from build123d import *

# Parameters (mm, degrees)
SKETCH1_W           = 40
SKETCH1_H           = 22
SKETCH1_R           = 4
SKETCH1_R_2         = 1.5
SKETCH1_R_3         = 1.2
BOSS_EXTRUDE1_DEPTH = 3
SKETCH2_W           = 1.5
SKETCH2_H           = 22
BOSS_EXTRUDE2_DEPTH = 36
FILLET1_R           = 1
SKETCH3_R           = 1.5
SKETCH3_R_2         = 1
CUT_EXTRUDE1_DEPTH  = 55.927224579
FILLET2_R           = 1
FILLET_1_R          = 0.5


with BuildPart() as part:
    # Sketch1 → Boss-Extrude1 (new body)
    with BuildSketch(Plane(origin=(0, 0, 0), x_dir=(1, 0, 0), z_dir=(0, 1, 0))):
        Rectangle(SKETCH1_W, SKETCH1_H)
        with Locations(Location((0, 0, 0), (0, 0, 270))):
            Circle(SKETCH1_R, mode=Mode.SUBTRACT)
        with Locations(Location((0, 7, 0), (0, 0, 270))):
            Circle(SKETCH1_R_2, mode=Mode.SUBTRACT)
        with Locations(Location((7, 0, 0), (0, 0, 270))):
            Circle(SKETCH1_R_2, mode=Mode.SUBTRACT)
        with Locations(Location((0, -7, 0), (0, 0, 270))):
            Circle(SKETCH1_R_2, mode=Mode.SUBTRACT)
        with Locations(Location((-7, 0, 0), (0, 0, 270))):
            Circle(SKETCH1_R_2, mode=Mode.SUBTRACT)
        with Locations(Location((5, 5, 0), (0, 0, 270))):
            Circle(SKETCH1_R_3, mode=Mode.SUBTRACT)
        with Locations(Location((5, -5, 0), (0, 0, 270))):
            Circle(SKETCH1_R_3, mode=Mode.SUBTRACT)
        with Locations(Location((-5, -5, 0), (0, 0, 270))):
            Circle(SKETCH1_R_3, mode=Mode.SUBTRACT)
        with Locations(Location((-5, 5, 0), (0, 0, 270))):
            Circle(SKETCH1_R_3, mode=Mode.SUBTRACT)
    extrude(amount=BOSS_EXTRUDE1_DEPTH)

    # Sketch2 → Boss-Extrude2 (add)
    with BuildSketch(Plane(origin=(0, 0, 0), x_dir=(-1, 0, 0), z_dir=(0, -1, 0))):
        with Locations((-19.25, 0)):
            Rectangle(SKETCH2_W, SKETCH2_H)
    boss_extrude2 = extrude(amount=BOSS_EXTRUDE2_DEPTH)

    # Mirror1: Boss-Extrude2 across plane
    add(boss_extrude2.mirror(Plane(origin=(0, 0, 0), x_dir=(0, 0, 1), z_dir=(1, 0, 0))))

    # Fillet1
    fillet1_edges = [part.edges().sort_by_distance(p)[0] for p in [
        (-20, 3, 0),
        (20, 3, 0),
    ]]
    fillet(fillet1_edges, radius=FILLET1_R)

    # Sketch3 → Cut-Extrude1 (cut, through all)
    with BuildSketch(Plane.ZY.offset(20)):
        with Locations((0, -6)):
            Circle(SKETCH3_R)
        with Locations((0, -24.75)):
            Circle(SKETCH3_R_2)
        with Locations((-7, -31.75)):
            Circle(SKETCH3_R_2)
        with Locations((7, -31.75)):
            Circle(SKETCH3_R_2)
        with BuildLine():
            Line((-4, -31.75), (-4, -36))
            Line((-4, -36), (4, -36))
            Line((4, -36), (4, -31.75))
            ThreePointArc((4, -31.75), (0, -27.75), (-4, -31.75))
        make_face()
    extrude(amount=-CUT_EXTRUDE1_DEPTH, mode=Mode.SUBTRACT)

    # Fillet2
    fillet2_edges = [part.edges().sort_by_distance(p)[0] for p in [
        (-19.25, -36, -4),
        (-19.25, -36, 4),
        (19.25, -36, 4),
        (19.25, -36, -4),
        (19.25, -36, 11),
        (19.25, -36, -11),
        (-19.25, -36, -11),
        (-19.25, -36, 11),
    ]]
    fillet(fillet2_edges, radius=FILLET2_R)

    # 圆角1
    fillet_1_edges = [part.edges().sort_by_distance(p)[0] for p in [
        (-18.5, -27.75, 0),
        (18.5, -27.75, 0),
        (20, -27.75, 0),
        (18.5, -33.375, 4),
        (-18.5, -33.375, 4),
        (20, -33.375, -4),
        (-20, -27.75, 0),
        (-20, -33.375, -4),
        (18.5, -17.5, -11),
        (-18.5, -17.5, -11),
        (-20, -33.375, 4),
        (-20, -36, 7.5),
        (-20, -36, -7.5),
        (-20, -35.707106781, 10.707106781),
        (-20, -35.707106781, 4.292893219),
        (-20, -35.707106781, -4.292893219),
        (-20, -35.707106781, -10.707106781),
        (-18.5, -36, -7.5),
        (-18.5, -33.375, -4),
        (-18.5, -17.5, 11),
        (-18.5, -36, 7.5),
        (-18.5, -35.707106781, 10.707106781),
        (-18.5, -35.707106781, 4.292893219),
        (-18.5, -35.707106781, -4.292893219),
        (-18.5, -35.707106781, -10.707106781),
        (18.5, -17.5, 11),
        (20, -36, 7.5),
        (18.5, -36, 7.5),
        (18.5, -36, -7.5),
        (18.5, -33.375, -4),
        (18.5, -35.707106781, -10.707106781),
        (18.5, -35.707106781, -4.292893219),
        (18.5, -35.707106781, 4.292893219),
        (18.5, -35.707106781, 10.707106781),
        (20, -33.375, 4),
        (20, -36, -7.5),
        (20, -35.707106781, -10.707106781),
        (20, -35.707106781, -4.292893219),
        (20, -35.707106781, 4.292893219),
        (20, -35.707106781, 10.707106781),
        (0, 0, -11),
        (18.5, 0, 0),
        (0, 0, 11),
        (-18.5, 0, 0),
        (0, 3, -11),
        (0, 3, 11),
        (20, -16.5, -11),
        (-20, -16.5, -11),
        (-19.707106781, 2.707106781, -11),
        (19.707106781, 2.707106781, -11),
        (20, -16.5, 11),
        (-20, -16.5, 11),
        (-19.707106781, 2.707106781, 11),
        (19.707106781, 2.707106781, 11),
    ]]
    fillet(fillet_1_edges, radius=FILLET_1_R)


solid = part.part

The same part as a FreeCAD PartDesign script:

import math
import FreeCAD as App
import Part
import Sketcher

V = App.Vector
Q = App.Units.Quantity


def edges_at(feature, points):
    """Names of the edges that pass closest to the given points."""
    edges = feature.Shape.Edges
    near = lambda p: min(range(len(edges)), key=lambda i: edges[i].distToShape(Part.Vertex(*p))[0])
    return sorted({f"Edge{near(p) + 1}" for p in points})


def add_polygon(sketch, points):
    """Adds a closed chain of lines whose ends are joined by coincident constraints."""
    first, n = sketch.GeometryCount, len(points)
    for a, b in zip(points, points[1:] + points[:1]):
        sketch.addGeometry(Part.LineSegment(App.Vector(*a, 0), App.Vector(*b, 0)), False)
    for i in range(n):
        sketch.addConstraint(Sketcher.Constraint("Coincident", first + i, 2, first + (i + 1) % n, 1))

doc = App.newDocument("Part")
params = doc.addObject("Spreadsheet::Sheet", "Params")
for row, (alias, value) in enumerate([
    ("sketch1_diameter", "3 mm"),
    ("sketch1_diameter2", "8 mm"),
    ("sketch1_diameter3", "2.4 mm"),
    ("sketch1_width", "40 mm"),
    ("sketch1_height", "22 mm"),
    ("pad1_length", "3 mm"),
    ("sketch2_height", "22 mm"),
    ("sketch2_width", "1.5 mm"),
    ("pad2_length", "36 mm"),
    ("fillet_radius", "1 mm"),
    ("sketch3_diameter", "3 mm"),
    ("sketch3_diameter2", "2 mm"),
    ("sketch3_radius", "4 mm"),
    ("sketch3_width", "4.25 mm"),
    ("fillet2_radius", "1 mm"),
    ("fillet3_radius", "0.5 mm"),
], start=1):
    params.set(f"A{row}", alias)
    params.set(f"B{row}", "=" + value)
    params.setAlias(f"B{row}", alias)

body = doc.addObject("PartDesign::Body", "Body")

# Sketch on XZ plane
sketch1 = body.newObject("Sketcher::SketchObject", "Sketch")
sketch1.AttachmentSupport = (doc.getObject("XZ_Plane"), [""])
sketch1.MapMode = "FlatFace"
add_polygon(sketch1, [(-20, -11), (-20, 11), (20, 11), (20, -11)])  # lines 0-3
sketch1.addGeometry(Part.Circle(V(-5, 5, 0), V(0, 0, 1), 1.2), False)  # 4
sketch1.addGeometry(Part.Circle(V(0, 7, 0), V(0, 0, 1), 1.5), False)  # 5
sketch1.addGeometry(Part.Circle(V(5, 5, 0), V(0, 0, 1), 1.2), False)  # 6
sketch1.addGeometry(Part.Circle(V(-7, 0, 0), V(0, 0, 1), 1.5), False)  # 7
sketch1.addGeometry(Part.Circle(V(-5, -5, 0), V(0, 0, 1), 1.2), False)  # 8
sketch1.addGeometry(Part.Circle(V(0, 0, 0), V(0, 0, 1), 4), False)  # 9
sketch1.addGeometry(Part.Circle(V(7, 0, 0), V(0, 0, 1), 1.5), False)  # 10
sketch1.addGeometry(Part.Circle(V(0, -7, 0), V(0, 0, 1), 1.5), False)  # 11
sketch1.addGeometry(Part.Circle(V(5, -5, 0), V(0, 0, 1), 1.2), False)  # 12
sketch1.addConstraint([
    Sketcher.Constraint("Vertical", 0),
    Sketcher.Constraint("Horizontal", 1),
    Sketcher.Constraint("Vertical", 2),
    Sketcher.Constraint("Horizontal", 3),
    Sketcher.Constraint("Coincident", 9, 3, -1, 1),
    Sketcher.Constraint("Equal", 4, 6),
    Sketcher.Constraint("Equal", 5, 7),
    Sketcher.Constraint("Equal", 6, 8),
    Sketcher.Constraint("Equal", 7, 10),
    Sketcher.Constraint("Equal", 10, 11),
    Sketcher.Constraint("Equal", 8, 12),
    Sketcher.Constraint("Symmetric", 6, 3, 8, 3, -1, 1),
    Sketcher.Constraint("Symmetric", 7, 3, 10, 3, -1, 1),
    Sketcher.Constraint("Symmetric", 5, 3, 11, 3, -1, 1),
    Sketcher.Constraint("Symmetric", 4, 3, 12, 3, -1, 1),
    Sketcher.Constraint("Symmetric", 0, 2, 2, 2, -1, 1),
    Sketcher.Constraint("Symmetric", 4, 3, 6, 3, -2),
    Sketcher.Constraint("PointOnObject", 5, 3, -2),
    Sketcher.Constraint("PointOnObject", 7, 3, -1),
    Sketcher.Constraint("Diameter", 5, Q("3 mm")),
    Sketcher.Constraint("Diameter", 9, Q("8 mm")),
    Sketcher.Constraint("Diameter", 4, Q("2.4 mm")),
    Sketcher.Constraint("DistanceX", 1, 1, 1, 2, Q("40 mm")),
    Sketcher.Constraint("DistanceY", 0, 1, 0, 2, Q("22 mm")),
    Sketcher.Constraint("DistanceX", 4, 3, -1, 1, Q("5 mm")),
    Sketcher.Constraint("DistanceY", -1, 1, 4, 3, Q("5 mm")),
    Sketcher.Constraint("DistanceY", -1, 1, 5, 3, Q("7 mm")),
    Sketcher.Constraint("DistanceX", 7, 3, -1, 1, Q("7 mm")),
])
sketch1.setExpression("Constraints[23]", "Params.sketch1_diameter")
sketch1.setExpression("Constraints[24]", "Params.sketch1_diameter2")
sketch1.setExpression("Constraints[25]", "Params.sketch1_diameter3")
sketch1.setExpression("Constraints[26]", "Params.sketch1_width")
sketch1.setExpression("Constraints[27]", "Params.sketch1_height")
pad1 = body.newObject("PartDesign::Pad", "Pad")
pad1.Profile = sketch1
pad1.setExpression("Length", "Params.pad1_length")
pad1.Reversed = True

# Sketch on XZ plane
sketch2 = body.newObject("Sketcher::SketchObject", "Sketch001")
sketch2.AttachmentSupport = (doc.getObject("XZ_Plane"), [""])
sketch2.MapMode = "FlatFace"
add_polygon(sketch2, [(20, -11), (20, 11), (18.5, 11), (18.5, -11)])  # lines 0-3
sketch2.addConstraint([
    Sketcher.Constraint("Vertical", 0),
    Sketcher.Constraint("Horizontal", 1),
    Sketcher.Constraint("Vertical", 2),
    Sketcher.Constraint("Horizontal", 3),
    Sketcher.Constraint("DistanceY", 0, 1, 0, 2, Q("22 mm")),
    Sketcher.Constraint("DistanceX", 1, 2, 1, 1, Q("1.5 mm")),
    Sketcher.Constraint("DistanceX", -1, 1, 0, 2, Q("20 mm")),
    Sketcher.Constraint("DistanceY", -1, 1, 0, 2, Q("11 mm")),
])
sketch2.setExpression("Constraints[8]", "Params.sketch2_height")
sketch2.setExpression("Constraints[9]", "Params.sketch2_width")
pad2 = body.newObject("PartDesign::Pad", "Pad001")
pad2.Profile = sketch2
pad2.setExpression("Length", "Params.pad2_length")
doc.recompute()

mirrored = body.newObject("PartDesign::Mirrored", "Mirrored")
mirrored.Originals = [pad2]
mirrored.MirrorPlane = (doc.getObject("YZ_Plane"), [""])
body.Tip = mirrored
doc.recompute()

fillet = body.newObject("PartDesign::Fillet", "Fillet")
fillet.Base = (mirrored, edges_at(mirrored, [(-20, 3, 0), (20, 3, 0)]))
fillet.setExpression("Radius", "Params.fillet_radius")

# Sketch on YZ plane
sketch3 = body.newObject("Sketcher::SketchObject", "Sketch002")
sketch3.AttachmentSupport = (doc.getObject("YZ_Plane"), [""])
sketch3.MapMode = "FlatFace"
sketch3.AttachmentOffset = App.Placement(V(0, 0, -20), App.Rotation())
sketch3.addGeometry([
    Part.Circle(V(-6, 0, 0), V(0, 0, 1), 1.5),  # 0
    Part.Circle(V(-24.8, 0, 0), V(0, 0, 1), 1),  # 1
    Part.Circle(V(-31.8, -7, 0), V(0, 0, 1), 1),  # 2
    Part.Circle(V(-31.8, 7, 0), V(0, 0, 1), 1),  # 3
    Part.LineSegment(V(-31.8, -4, 0), V(-36, -4, 0)),  # 4
    Part.LineSegment(V(-36, -4, 0), V(-36, 4, 0)),  # 5
    Part.LineSegment(V(-36, 4, 0), V(-31.8, 4, 0)),  # 6
    Part.ArcOfCircle(Part.Circle(V(-31.8, 0, 0), V(0, 0, 1), 4), math.radians(-90), math.radians(90)),  # 7
], False)
sketch3.addConstraint([
    Sketcher.Constraint("Coincident", 4, 2, 5, 1),
    Sketcher.Constraint("Coincident", 5, 2, 6, 1),
    Sketcher.Constraint("Tangent", 6, 2, 7, 2),
    Sketcher.Constraint("Tangent", 7, 1, 4, 1),
    Sketcher.Constraint("Horizontal", 4),
    Sketcher.Constraint("Vertical", 5),
    Sketcher.Constraint("Horizontal", 6),
    Sketcher.Constraint("Equal", 1, 2),
    Sketcher.Constraint("Equal", 2, 3),
    Sketcher.Constraint("Symmetric", 2, 3, 3, 3, -1),
    Sketcher.Constraint("PointOnObject", 0, 3, -1),
    Sketcher.Constraint("PointOnObject", 1, 3, -1),
    Sketcher.Constraint("PointOnObject", 7, 3, -1),
    Sketcher.Constraint("Vertical", 3, 3, 7, 3),
    Sketcher.Constraint("Diameter", 0, Q("3 mm")),
    Sketcher.Constraint("Diameter", 1, Q("2 mm")),
    Sketcher.Constraint("Radius", 7, Q("4 mm")),
    Sketcher.Constraint("DistanceX", 0, 3, -1, 1, Q("6 mm")),
    Sketcher.Constraint("DistanceY", 2, 3, -1, 1, Q("7 mm")),
    Sketcher.Constraint("DistanceX", 4, 2, -1, 1, Q("36 mm")),
    Sketcher.Constraint("DistanceX", 2, 3, 1, 3, Q("7 mm")),
    Sketcher.Constraint("DistanceX", 4, 2, 4, 1, Q("4.25 mm")),
])
sketch3.setExpression("Constraints[14]", "Params.sketch3_diameter")
sketch3.setExpression("Constraints[15]", "Params.sketch3_diameter2")
sketch3.setExpression("Constraints[16]", "Params.sketch3_radius")
sketch3.setExpression("Constraints[21]", "Params.sketch3_width")
pocket1 = body.newObject("PartDesign::Pocket", "Pocket")
pocket1.Profile = sketch3
pocket1.Type = "ThroughAll"
pocket1.Reversed = True
doc.recompute()

fillet2 = body.newObject("PartDesign::Fillet", "Fillet001")
fillet2.Base = (pocket1, edges_at(pocket1, [
    (-19.25, -36, -4),
    (-19.25, -36, 4),
    (19.25, -36, 4),
    (19.25, -36, -4),
    (19.25, -36, 11),
    (19.25, -36, -11),
    (-19.25, -36, -11),
    (-19.25, -36, 11),
]))
fillet2.setExpression("Radius", "Params.fillet2_radius")
doc.recompute()

fillet3 = body.newObject("PartDesign::Fillet", "Fillet002")
fillet3.Base = (fillet2, edges_at(fillet2, [
    (-18.5, -27.75, 0),
    (18.5, -27.75, 0),
    (20, -27.75, 0),
    (18.5, -33.375, 4),
    (-18.5, -33.375, 4),
    (20, -33.375, -4),
    (-20, -27.75, 0),
    (-20, -33.375, -4),
    (18.5, -17.5, -11),
    (-18.5, -17.5, -11),
    (-20, -33.375, 4),
    (-20, -36, 7.5),
    (-20, -36, -7.5),
    (-20, -35.707, 10.707),
    (-20, -35.707, 4.293),
    (-20, -35.707, -4.293),
    (-20, -35.707, -10.707),
    (-18.5, -36, -7.5),
    (-18.5, -33.375, -4),
    (-18.5, -17.5, 11),
    (-18.5, -36, 7.5),
    (-18.5, -35.707, 10.707),
    (-18.5, -35.707, 4.293),
    (-18.5, -35.707, -4.293),
    (-18.5, -35.707, -10.707),
    (18.5, -17.5, 11),
    (20, -36, 7.5),
    (18.5, -36, 7.5),
    (18.5, -36, -7.5),
    (18.5, -33.375, -4),
    (18.5, -35.707, -10.707),
    (18.5, -35.707, -4.293),
    (18.5, -35.707, 4.293),
    (18.5, -35.707, 10.707),
    (20, -33.375, 4),
    (20, -36, -7.5),
    (20, -35.707, -10.707),
    (20, -35.707, -4.293),
    (20, -35.707, 4.293),
    (20, -35.707, 10.707),
    (0, 0, -11),
    (18.5, 0, 0),
    (0, 0, 11),
    (-18.5, 0, 0),
    (0, 3, -11),
    (0, 3, 11),
    (20, -16.5, -11),
    (-20, -16.5, -11),
    (-19.707, 2.707, -11),
    (19.707, 2.707, -11),
    (20, -16.5, 11),
    (-20, -16.5, 11),
    (-19.707, 2.707, 11),
    (19.707, 2.707, 11),
]))
fillet3.setExpression("Radius", "Params.fillet3_radius")

doc.recompute()
